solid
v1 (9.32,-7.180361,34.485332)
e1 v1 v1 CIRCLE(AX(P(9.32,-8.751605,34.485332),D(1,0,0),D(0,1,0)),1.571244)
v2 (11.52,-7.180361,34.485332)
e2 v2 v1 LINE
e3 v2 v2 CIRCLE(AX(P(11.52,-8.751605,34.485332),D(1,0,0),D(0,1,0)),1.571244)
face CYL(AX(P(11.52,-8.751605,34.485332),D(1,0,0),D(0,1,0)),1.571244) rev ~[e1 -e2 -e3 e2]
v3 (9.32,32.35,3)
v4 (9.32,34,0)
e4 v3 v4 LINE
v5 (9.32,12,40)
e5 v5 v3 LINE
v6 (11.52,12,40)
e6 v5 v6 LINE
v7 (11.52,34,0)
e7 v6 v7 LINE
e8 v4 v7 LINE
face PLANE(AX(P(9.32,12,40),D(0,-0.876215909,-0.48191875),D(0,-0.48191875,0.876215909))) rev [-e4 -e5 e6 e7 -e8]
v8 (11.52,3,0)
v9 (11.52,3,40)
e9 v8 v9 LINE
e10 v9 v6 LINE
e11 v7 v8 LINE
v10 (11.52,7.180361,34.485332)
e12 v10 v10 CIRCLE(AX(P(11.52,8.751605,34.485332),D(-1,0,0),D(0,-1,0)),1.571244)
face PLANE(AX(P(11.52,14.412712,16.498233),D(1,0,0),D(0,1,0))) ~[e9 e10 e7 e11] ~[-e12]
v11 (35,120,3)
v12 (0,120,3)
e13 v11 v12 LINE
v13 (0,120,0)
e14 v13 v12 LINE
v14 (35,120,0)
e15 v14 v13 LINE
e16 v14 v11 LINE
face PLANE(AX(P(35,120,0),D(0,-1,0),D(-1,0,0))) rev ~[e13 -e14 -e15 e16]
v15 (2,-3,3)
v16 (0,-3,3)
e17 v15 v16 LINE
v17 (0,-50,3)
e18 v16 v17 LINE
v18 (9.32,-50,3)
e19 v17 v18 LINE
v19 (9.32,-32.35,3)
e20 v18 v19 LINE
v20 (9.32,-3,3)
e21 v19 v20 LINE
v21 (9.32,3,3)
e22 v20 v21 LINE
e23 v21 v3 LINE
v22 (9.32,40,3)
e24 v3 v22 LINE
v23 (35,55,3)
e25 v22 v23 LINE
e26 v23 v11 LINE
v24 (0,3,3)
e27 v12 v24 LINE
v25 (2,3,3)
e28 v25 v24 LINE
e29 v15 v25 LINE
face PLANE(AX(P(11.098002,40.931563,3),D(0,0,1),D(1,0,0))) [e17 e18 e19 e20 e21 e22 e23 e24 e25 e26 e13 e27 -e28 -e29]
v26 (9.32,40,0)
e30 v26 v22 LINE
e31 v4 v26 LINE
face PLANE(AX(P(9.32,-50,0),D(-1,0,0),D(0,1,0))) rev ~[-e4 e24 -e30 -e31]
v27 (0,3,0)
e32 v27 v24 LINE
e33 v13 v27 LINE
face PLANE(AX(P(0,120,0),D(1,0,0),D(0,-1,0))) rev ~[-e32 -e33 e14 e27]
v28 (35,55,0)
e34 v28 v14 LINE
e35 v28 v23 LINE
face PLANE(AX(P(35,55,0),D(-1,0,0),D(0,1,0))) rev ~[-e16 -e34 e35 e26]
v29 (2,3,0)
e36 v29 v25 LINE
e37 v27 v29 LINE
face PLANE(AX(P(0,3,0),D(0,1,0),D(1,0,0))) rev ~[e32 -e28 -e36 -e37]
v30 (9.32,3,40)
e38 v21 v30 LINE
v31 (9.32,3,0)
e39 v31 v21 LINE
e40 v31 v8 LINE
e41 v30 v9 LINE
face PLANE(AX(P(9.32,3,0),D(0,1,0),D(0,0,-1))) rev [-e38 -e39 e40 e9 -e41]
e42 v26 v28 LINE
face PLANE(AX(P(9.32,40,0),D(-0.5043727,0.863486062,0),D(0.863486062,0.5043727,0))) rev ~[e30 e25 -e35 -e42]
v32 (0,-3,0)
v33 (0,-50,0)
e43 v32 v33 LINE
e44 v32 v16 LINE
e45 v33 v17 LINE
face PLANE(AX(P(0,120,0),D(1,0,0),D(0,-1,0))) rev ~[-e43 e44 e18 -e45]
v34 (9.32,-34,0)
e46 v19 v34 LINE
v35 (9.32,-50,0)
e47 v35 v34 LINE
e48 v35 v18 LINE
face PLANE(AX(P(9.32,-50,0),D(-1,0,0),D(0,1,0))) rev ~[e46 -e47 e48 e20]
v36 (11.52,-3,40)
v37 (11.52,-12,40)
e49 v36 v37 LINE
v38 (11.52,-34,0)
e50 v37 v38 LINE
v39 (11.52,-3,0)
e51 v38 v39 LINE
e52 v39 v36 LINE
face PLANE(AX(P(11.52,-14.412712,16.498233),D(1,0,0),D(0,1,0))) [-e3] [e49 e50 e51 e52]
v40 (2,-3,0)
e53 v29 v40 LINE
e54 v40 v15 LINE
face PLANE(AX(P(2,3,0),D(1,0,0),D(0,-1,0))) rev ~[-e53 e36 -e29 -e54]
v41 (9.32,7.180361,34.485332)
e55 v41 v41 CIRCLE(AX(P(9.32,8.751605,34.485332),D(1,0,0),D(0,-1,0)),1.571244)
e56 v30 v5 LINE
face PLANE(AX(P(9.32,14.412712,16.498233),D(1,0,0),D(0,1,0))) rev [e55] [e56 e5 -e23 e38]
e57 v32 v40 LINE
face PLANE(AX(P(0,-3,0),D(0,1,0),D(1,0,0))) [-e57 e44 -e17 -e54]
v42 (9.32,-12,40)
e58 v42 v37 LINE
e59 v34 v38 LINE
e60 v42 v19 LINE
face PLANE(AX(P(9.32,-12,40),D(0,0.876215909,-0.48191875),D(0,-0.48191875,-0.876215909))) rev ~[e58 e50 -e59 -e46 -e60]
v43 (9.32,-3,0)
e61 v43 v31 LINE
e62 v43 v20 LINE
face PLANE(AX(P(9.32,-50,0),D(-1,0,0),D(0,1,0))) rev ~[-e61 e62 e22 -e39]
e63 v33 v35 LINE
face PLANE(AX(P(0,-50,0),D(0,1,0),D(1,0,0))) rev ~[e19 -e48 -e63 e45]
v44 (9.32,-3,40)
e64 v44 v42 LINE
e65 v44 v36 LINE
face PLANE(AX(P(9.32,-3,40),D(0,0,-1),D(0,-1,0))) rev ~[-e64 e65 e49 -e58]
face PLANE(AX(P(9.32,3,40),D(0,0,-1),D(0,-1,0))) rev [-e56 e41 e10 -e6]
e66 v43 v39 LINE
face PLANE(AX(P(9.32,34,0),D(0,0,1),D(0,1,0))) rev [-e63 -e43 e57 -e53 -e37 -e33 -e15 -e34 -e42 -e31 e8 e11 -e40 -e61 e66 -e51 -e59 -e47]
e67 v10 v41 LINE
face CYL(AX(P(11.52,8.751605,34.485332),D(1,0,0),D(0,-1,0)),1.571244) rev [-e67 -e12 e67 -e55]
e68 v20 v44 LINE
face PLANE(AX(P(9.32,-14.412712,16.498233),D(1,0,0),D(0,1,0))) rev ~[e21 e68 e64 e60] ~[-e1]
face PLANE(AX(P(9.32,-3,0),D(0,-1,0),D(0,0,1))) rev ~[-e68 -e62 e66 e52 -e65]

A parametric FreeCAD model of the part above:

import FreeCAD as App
import Part
import Sketcher
from FreeCAD import Vector
Q = App.Units.Quantity

doc = App.newDocument("Part")
body = doc.addObject("PartDesign::Body", "Body")

# Sketch on XY plane
sketch1 = body.newObject("Sketcher::SketchObject", "Sketch")
sketch1.AttachmentSupport = (doc.getObject("XY_Plane"), [""])
sketch1.MapMode = "FlatFace"
sketch1.addGeometry([
    Part.LineSegment(Vector(0, -50, 0), Vector(9, -50, 0)),  # 0
    Part.LineSegment(Vector(9, -50, 0), Vector(9, 40, 0)),  # 1
    Part.LineSegment(Vector(9, 40, 0), Vector(35, 55, 0)),  # 2
    Part.LineSegment(Vector(35, 55, 0), Vector(35, 120, 0)),  # 3
    Part.LineSegment(Vector(35, 120, 0), Vector(0, 120, 0)),  # 4
    Part.LineSegment(Vector(0, 120, 0), Vector(0, -50, 0)),  # 5
], False)
sketch1.addConstraint([
    Sketcher.Constraint("Coincident", 0, 2, 1, 1),
    Sketcher.Constraint("Coincident", 1, 2, 2, 1),
    Sketcher.Constraint("Coincident", 2, 2, 3, 1),
    Sketcher.Constraint("Coincident", 3, 2, 4, 1),
    Sketcher.Constraint("Coincident", 4, 2, 5, 1),
    Sketcher.Constraint("Coincident", 5, 2, 0, 1),
    Sketcher.Constraint("Horizontal", 0),
    Sketcher.Constraint("Vertical", 1),
    Sketcher.Constraint("Vertical", 3),
    Sketcher.Constraint("Horizontal", 4),
    Sketcher.Constraint("Vertical", 5),
    Sketcher.Constraint("PointOnObject", 4, 2, -2),
    Sketcher.Constraint("DistanceX", 4, 2, 4, 1, Q("35 mm")),
    Sketcher.Constraint("DistanceY", 1, 1, 1, 2, Q("90 mm")),
    Sketcher.Constraint("DistanceY", 3, 1, 3, 2, Q("65 mm")),
    Sketcher.Constraint("DistanceY", 5, 2, 5, 1, Q("170 mm")),
    Sketcher.Constraint("DistanceY", 0, 2, -1, 1, Q("50 mm")),
    Sketcher.Constraint("DistanceX", 0, 1, 0, 2, Q("9.32 mm")),
])
pad1 = body.newObject("PartDesign::Pad", "Pad")
pad1.Profile = sketch1
pad1.Length = 3

# Sketch on XY plane
sketch2 = body.newObject("Sketcher::SketchObject", "Sketch001")
sketch2.AttachmentSupport = (doc.getObject("XY_Plane"), [""])
sketch2.MapMode = "FlatFace"
sketch2.addGeometry([
    Part.LineSegment(Vector(0, -3, 0), Vector(0, 3, 0)),
    Part.LineSegment(Vector(0, 3, 0), Vector(2, 3, 0)),
    Part.LineSegment(Vector(2, 3, 0), Vector(2, -3, 0)),
    Part.LineSegment(Vector(2, -3, 0), Vector(0, -3, 0)),
], False)
sketch2.addConstraint([
    Sketcher.Constraint("Coincident", 0, 2, 1, 1),
    Sketcher.Constraint("Coincident", 1, 2, 2, 1),
    Sketcher.Constraint("Coincident", 2, 2, 3, 1),
    Sketcher.Constraint("Coincident", 3, 2, 0, 1),
    Sketcher.Constraint("Vertical", 0),
    Sketcher.Constraint("Horizontal", 1),
    Sketcher.Constraint("Vertical", 2),
    Sketcher.Constraint("Horizontal", 3),
    Sketcher.Constraint("Symmetric", 0, 2, 3, 2, -1, 1),
    Sketcher.Constraint("DistanceX", 1, 1, 1, 2, Q("2 mm")),
    Sketcher.Constraint("DistanceY", 0, 1, 0, 2, Q("6 mm")),
])
pocket1 = body.newObject("PartDesign::Pocket", "Pocket")
pocket1.Profile = sketch2
pocket1.Length = 5
pocket1.Reversed = True

# Sketch on YZ plane
sketch3 = body.newObject("Sketcher::SketchObject", "Sketch002")
sketch3.AttachmentSupport = (doc.getObject("YZ_Plane"), [""])
sketch3.MapMode = "FlatFace"
sketch3.AttachmentOffset = App.Placement(Vector(0, 0, 9.32), App.Rotation())
sketch3.addGeometry([
    Part.LineSegment(Vector(-3, 0, 0), Vector(-3, 40, 0)),
    Part.LineSegment(Vector(-3, 40, 0), Vector(-12, 40, 0)),
    Part.LineSegment(Vector(-12, 40, 0), Vector(-34, 0, 0)),
    Part.LineSegment(Vector(-34, 0, 0), Vector(-3, 0, 0)),
], False)
sketch3.addConstraint([
    Sketcher.Constraint("Coincident", 0, 2, 1, 1),
    Sketcher.Constraint("Coincident", 1, 2, 2, 1),
    Sketcher.Constraint("Coincident", 2, 2, 3, 1),
    Sketcher.Constraint("Coincident", 3, 2, 0, 1),
    Sketcher.Constraint("Vertical", 0),
    Sketcher.Constraint("Horizontal", 1),
    Sketcher.Constraint("Horizontal", 3),
    Sketcher.Constraint("PointOnObject", 2, 2, -1),
    Sketcher.Constraint("DistanceX", 1, 2, 1, 1, Q("9 mm")),
    Sketcher.Constraint("DistanceX", 3, 1, 3, 2, Q("31 mm")),
    Sketcher.Constraint("DistanceY", 0, 1, 0, 2, Q("40 mm")),
    Sketcher.Constraint("DistanceX", 0, 2, -1, 1, Q("3 mm")),
])
pad2 = body.newObject("PartDesign::Pad", "Pad001")
pad2.Profile = sketch3
pad2.Length = 2.2

# Sketch on YZ plane
sketch4 = body.newObject("Sketcher::SketchObject", "Sketch003")
sketch4.AttachmentSupport = (doc.getObject("YZ_Plane"), [""])
sketch4.MapMode = "FlatFace"
sketch4.AttachmentOffset = App.Placement(Vector(0, 0, 11.52), App.Rotation())
sketch4.addGeometry(Part.Circle(Vector(-8.8, 34.5, 0), Vector(0, 0, 1), 1.6), False)
sketch4.addConstraint([
    Sketcher.Constraint("Diameter", 0, Q("3.142488 mm")),
    Sketcher.Constraint("DistanceX", 0, 3, -1, 1, Q("8.751605 mm")),
    Sketcher.Constraint("DistanceY", -1, 1, 0, 3, Q("34.485332 mm")),
])
pocket2 = body.newObject("PartDesign::Pocket", "Pocket001")
pocket2.Profile = sketch4
pocket2.Length = 5
doc.recompute()

mirrored = body.newObject("PartDesign::Mirrored", "Mirrored")
mirrored.Originals = [pocket1, pad2, pocket2]
mirrored.MirrorPlane = (doc.getObject("XZ_Plane"), [""])
body.Tip = mirrored

doc.recompute()
